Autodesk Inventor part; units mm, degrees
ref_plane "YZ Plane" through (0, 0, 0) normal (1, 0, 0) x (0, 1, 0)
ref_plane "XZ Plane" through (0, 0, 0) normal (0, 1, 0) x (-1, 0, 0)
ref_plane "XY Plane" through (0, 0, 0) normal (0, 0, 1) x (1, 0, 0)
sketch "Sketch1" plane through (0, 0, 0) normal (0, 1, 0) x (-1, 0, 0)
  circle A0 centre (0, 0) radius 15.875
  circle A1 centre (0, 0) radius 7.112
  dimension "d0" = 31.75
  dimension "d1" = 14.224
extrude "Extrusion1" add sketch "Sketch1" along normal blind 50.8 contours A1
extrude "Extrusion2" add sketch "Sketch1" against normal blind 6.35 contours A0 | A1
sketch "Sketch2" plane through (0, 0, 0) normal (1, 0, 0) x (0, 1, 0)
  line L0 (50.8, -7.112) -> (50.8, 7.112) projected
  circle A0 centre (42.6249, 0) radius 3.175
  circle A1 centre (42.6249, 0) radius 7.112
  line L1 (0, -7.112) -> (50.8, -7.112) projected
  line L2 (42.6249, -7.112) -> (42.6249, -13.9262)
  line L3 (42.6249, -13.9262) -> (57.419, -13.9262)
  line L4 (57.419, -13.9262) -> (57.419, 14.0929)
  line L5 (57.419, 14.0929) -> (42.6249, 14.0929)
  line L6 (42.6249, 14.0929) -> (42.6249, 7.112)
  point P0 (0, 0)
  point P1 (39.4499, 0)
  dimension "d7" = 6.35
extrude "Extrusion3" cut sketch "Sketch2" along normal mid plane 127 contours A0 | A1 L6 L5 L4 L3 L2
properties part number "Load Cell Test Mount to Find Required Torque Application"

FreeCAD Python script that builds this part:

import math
import FreeCAD as App
import Part
import Sketcher

V = App.Vector
Q = App.Units.Quantity

doc = App.newDocument("Part")
params = doc.addObject("Spreadsheet::Sheet", "Params")
for row, (alias, value) in enumerate([
    ("sketch1_diameter", "0.56 in"),
    ("pad1_length", "2 in"),
    ("sketch2_diameter", "1.25 in"),
    ("pad2_length", "0.25 in"),
    ("sketch3_diameter", "0.25 in"),
    ("sketch3_radius", "0.28 in"),
    ("pocket1_length", "5 in"),
], start=1):
    params.set(f"A{row}", alias)
    params.set(f"B{row}", "=" + value)
    params.setAlias(f"B{row}", alias)

body = doc.addObject("PartDesign::Body", "Body")

# Sketch on XZ plane
sketch1 = doc.addObject("Sketcher::SketchObject", "Sketch")
body.addObject(sketch1)
sketch1.AttachmentSupport = (doc.XZ_Plane, [""])
sketch1.MapMode = "FlatFace"
sketch1.addGeometry(Part.Circle(V(0, 0, 0), V(0, 0, 1), 7), False)
sketch1.addConstraint(Sketcher.Constraint("Coincident", 0, 3, -1, 1))
sketch1.addConstraint(Sketcher.Constraint("Diameter", 0, Q("0.56 in")))
sketch1.setExpression("Constraints[1]", "Params.sketch1_diameter")
pad1 = doc.addObject("PartDesign::Pad", "Pad")
body.addObject(pad1)
pad1.Profile = sketch1
pad1.setExpression("Length", "Params.pad1_length")
pad1.Reversed = True

# Sketch on XZ plane
sketch2 = doc.addObject("Sketcher::SketchObject", "Sketch001")
body.addObject(sketch2)
sketch2.AttachmentSupport = (doc.XZ_Plane, [""])
sketch2.MapMode = "FlatFace"
sketch2.addGeometry(Part.Circle(V(0, 0, 0), V(0, 0, 1), 16), False)
sketch2.addConstraint(Sketcher.Constraint("Coincident", 0, 3, -1, 1))
sketch2.addConstraint(Sketcher.Constraint("Diameter", 0, Q("1.25 in")))
sketch2.setExpression("Constraints[1]", "Params.sketch2_diameter")
pad2 = doc.addObject("PartDesign::Pad", "Pad001")
body.addObject(pad2)
pad2.Profile = sketch2
pad2.setExpression("Length", "Params.pad2_length")

# Sketch on YZ plane
sketch3 = doc.addObject("Sketcher::SketchObject", "Sketch002")
body.addObject(sketch3)
sketch3.AttachmentSupport = (doc.YZ_Plane, [""])
sketch3.MapMode = "FlatFace"
sketch3.addGeometry(Part.Circle(V(42.6, 0, 0), V(0, 0, 1), 3.2), False)
sketch3.addGeometry(Part.ArcOfCircle(Part.Circle(V(42.6, 0, 0), V(0, 0, 1), 7.1), math.radians(-90), math.radians(90)), False)
sketch3.addGeometry(Part.LineSegment(V(42.6, -7.1, 0), V(42.6, -13.9, 0)), False)
sketch3.addGeometry(Part.LineSegment(V(42.6, -13.9, 0), V(57.4, -13.9, 0)), False)
sketch3.addGeometry(Part.LineSegment(V(57.4, -13.9, 0), V(57.4, 14.1, 0)), False)
sketch3.addGeometry(Part.LineSegment(V(57.4, 14.1, 0), V(42.6, 14.1, 0)), False)
sketch3.addGeometry(Part.LineSegment(V(42.6, 14.1, 0), V(42.6, 7.1, 0)), False)
sketch3.addConstraint(Sketcher.Constraint("Coincident", 1, 1, 2, 1))
sketch3.addConstraint(Sketcher.Constraint("Coincident", 2, 2, 3, 1))
sketch3.addConstraint(Sketcher.Constraint("Coincident", 3, 2, 4, 1))
sketch3.addConstraint(Sketcher.Constraint("Coincident", 4, 2, 5, 1))
sketch3.addConstraint(Sketcher.Constraint("Coincident", 5, 2, 6, 1))
sketch3.addConstraint(Sketcher.Constraint("Coincident", 6, 2, 1, 2))
sketch3.addConstraint(Sketcher.Constraint("Vertical", 2))
sketch3.addConstraint(Sketcher.Constraint("Horizontal", 3))
sketch3.addConstraint(Sketcher.Constraint("Vertical", 4))
sketch3.addConstraint(Sketcher.Constraint("Horizontal", 5))
sketch3.addConstraint(Sketcher.Constraint("Vertical", 6))
sketch3.addConstraint(Sketcher.Constraint("Coincident", 1, 3, 0, 3))
sketch3.addConstraint(Sketcher.Constraint("Symmetric", 1, 1, 6, 2, -1))
sketch3.addConstraint(Sketcher.Constraint("Vertical", 0, 3, 1, 1))
sketch3.addConstraint(Sketcher.Constraint("Diameter", 0, Q("0.25 in")))
sketch3.addConstraint(Sketcher.Constraint("Radius", 1, Q("0.28 in")))
sketch3.addConstraint(Sketcher.Constraint("DistanceX", 3, 1, 3, 2, Q("14.794 mm")))
sketch3.addConstraint(Sketcher.Constraint("DistanceY", 2, 2, 2, 1, Q("6.8142 mm")))
sketch3.addConstraint(Sketcher.Constraint("DistanceY", 4, 1, 4, 2, Q("1.1031102 in")))
sketch3.addConstraint(Sketcher.Constraint("DistanceX", -1, 1, 3, 2, Q("2.2606 in")))
sketch3.setExpression("Constraints[14]", "Params.sketch3_diameter")
sketch3.setExpression("Constraints[15]", "Params.sketch3_radius")
pocket1 = doc.addObject("PartDesign::Pocket", "Pocket")
body.addObject(pocket1)
pocket1.Profile = sketch3
pocket1.setExpression("Length", "Params.pocket1_length")
pocket1.Midplane = True

doc.recompute()
